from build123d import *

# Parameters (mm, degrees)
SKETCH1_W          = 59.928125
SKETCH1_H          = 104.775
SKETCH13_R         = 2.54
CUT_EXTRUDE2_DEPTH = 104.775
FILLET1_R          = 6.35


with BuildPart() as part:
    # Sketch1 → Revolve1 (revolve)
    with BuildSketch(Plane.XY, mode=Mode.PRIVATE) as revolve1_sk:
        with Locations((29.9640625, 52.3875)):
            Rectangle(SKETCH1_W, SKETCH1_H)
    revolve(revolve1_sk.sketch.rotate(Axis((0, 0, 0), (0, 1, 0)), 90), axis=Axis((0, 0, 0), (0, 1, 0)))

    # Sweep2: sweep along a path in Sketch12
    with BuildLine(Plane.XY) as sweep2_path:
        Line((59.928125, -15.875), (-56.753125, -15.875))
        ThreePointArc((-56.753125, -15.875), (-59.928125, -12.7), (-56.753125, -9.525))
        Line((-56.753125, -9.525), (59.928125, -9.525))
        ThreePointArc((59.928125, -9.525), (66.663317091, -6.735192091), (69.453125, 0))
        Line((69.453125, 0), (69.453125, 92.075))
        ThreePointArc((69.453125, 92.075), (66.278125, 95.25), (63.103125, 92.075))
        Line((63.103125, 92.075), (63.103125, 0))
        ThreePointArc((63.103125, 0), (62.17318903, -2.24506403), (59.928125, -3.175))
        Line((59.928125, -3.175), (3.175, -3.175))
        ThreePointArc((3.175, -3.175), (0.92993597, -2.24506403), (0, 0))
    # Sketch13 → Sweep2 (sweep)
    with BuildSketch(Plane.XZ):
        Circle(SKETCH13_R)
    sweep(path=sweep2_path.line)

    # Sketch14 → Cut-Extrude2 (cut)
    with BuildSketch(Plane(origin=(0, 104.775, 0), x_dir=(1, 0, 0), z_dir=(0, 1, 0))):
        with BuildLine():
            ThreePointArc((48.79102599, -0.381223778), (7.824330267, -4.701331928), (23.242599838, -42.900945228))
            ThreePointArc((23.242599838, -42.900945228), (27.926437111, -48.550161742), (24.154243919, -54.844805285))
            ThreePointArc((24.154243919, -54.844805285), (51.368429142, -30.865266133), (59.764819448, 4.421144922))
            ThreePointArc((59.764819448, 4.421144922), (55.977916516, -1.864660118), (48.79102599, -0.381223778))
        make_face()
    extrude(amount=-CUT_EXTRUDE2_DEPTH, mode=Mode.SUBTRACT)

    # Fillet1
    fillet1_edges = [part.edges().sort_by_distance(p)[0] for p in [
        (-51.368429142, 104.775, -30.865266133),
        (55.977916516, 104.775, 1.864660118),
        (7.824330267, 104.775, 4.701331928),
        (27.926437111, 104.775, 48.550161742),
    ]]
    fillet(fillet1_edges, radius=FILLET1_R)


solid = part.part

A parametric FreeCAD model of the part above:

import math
import FreeCAD as App
import Part
import Sketcher

V = App.Vector
Q = App.Units.Quantity


def edges_at(feature, points):
    """Names of the edges that pass closest to the given points."""
    edges = feature.Shape.Edges
    near = lambda p: min(range(len(edges)), key=lambda i: edges[i].distToShape(Part.Vertex(*p))[0])
    return sorted({f"Edge{near(p) + 1}" for p in points})

doc = App.newDocument("Part")
params = doc.addObject("Spreadsheet::Sheet", "Params")
for row, (alias, value) in enumerate([
    ("sketch1_width", "2.359375 in"),
    ("sketch1_height", "4.125 in"),
    ("revolution_angle", "360 deg"),
    ("sketch2_diameter", "0.2 in"),
    ("sketch3_radius", "0.125 in"),
    ("sketch3_width", "4.59375 in"),
    ("sketch3_width2", "2.234375 in"),
    ("sketch4_radius", "0.25 in"),
    ("sketch4_radius2", "1.015625 in"),
    ("sketch4_radius3", "2.359375 in"),
    ("pocket1_length", "4.125 in"),
    ("fillet_radius", "0.25 in"),
], start=1):
    params.set(f"A{row}", alias)
    params.set(f"B{row}", "=" + value)
    params.setAlias(f"B{row}", alias)

body = doc.addObject("PartDesign::Body", "Body")

sketch1 = body.newObject("Sketcher::SketchObject", "Sketch")
sketch1.AttachmentSupport = (doc.getObject("XY_Plane"), [""])
sketch1.MapMode = "FlatFace"
sketch1.addGeometry([
    Part.LineSegment(V(0, 105, 0), V(0, 0, 0)),
    Part.LineSegment(V(0, 0, 0), V(60, 0, 0)),
    Part.LineSegment(V(60, 0, 0), V(60, 105, 0)),
    Part.LineSegment(V(60, 105, 0), V(0, 105, 0)),
], False)
sketch1.addConstraint([
    Sketcher.Constraint("Coincident", 0, 2, 1, 1),
    Sketcher.Constraint("Coincident", 1, 2, 2, 1),
    Sketcher.Constraint("Coincident", 2, 2, 3, 1),
    Sketcher.Constraint("Coincident", 3, 2, 0, 1),
    Sketcher.Constraint("Vertical", 0),
    Sketcher.Constraint("Horizontal", 1),
    Sketcher.Constraint("Vertical", 2),
    Sketcher.Constraint("Horizontal", 3),
    Sketcher.Constraint("Coincident", 0, 2, -1, 1),
    Sketcher.Constraint("DistanceX", 1, 1, 1, 2, Q("2.359375 in")),
    Sketcher.Constraint("DistanceY", 0, 2, 0, 1, Q("4.125 in")),
])
sketch1.setExpression("Constraints[9]", "Params.sketch1_width")
sketch1.setExpression("Constraints[10]", "Params.sketch1_height")
revolution = body.newObject("PartDesign::Revolution", "Revolution")
revolution.Profile = sketch1
revolution.ReferenceAxis = (sketch1, ["V_Axis"])
revolution.setExpression("Angle", "Params.revolution_angle")

sketch2 = body.newObject("Sketcher::SketchObject", "Sketch001")
sketch2.AttachmentSupport = (doc.getObject("XZ_Plane"), [""])
sketch2.MapMode = "FlatFace"
sketch2.addGeometry(Part.Circle(V(0, 0, 0), V(0, 0, 1), 2.5), False)
sketch2.addConstraint([
    Sketcher.Constraint("Coincident", 0, 3, -1, 1),
    Sketcher.Constraint("Diameter", 0, Q("0.2 in")),
])
sketch2.setExpression("Constraints[1]", "Params.sketch2_diameter")

sketch3 = body.newObject("Sketcher::SketchObject", "Sketch002")
sketch3.AttachmentSupport = (doc.getObject("XY_Plane"), [""])
sketch3.MapMode = "FlatFace"
sketch3.addGeometry([
    Part.LineSegment(V(59.9, -15.9, 0), V(-56.8, -15.9, 0)),
    Part.ArcOfCircle(Part.Circle(V(-56.8, -12.7, 0), V(0, 0, 1), 3.2), math.radians(90), math.radians(270)),
    Part.LineSegment(V(-56.8, -9.5, 0), V(59.9, -9.5, 0)),
    Part.ArcOfCircle(Part.Circle(V(59.9, 0, 0), V(0, 0, 1), 9.5), math.radians(-90), math.radians(0)),
    Part.LineSegment(V(69.5, 0, 0), V(69.5, 92.1, 0)),
    Part.ArcOfCircle(Part.Circle(V(66.3, 92.1, 0), V(0, 0, 1), 3.2), math.radians(0), math.radians(180)),
    Part.LineSegment(V(63.1, 92.1, 0), V(63.1, 0, 0)),
    Part.ArcOfCircle(Part.Circle(V(59.9, 0, 0), V(0, 0, 1), 3.2), math.radians(-90), math.radians(0)),
    Part.LineSegment(V(59.9, -3.2, 0), V(3.2, -3.2, 0)),
    Part.ArcOfCircle(Part.Circle(V(3.2, 0, 0), V(0, 0, 1), 3.2), math.radians(-180), math.radians(-90)),
], False)
sketch3.addConstraint([
    Sketcher.Constraint("Tangent", 0, 2, 1, 2),
    Sketcher.Constraint("Tangent", 1, 1, 2, 1),
    Sketcher.Constraint("Tangent", 2, 2, 3, 1),
    Sketcher.Constraint("Tangent", 3, 2, 4, 1),
    Sketcher.Constraint("Tangent", 4, 2, 5, 1),
    Sketcher.Constraint("Tangent", 5, 2, 6, 1),
    Sketcher.Constraint("Tangent", 6, 2, 7, 2),
    Sketcher.Constraint("Tangent", 7, 1, 8, 1),
    Sketcher.Constraint("Tangent", 8, 2, 9, 2),
    Sketcher.Constraint("Horizontal", 0),
    Sketcher.Constraint("Horizontal", 2),
    Sketcher.Constraint("Vertical", 4),
    Sketcher.Constraint("Vertical", 6),
    Sketcher.Constraint("Horizontal", 8),
    Sketcher.Constraint("Coincident", 9, 1, -1, 1),
    Sketcher.Constraint("Coincident", 7, 3, 3, 3),
    Sketcher.Constraint("Equal", 1, 5),
    Sketcher.Constraint("Equal", 5, 7),
    Sketcher.Constraint("Equal", 7, 9),
    Sketcher.Constraint("PointOnObject", 3, 3, -1),
    Sketcher.Constraint("Vertical", 7, 3, 0, 1),
    Sketcher.Constraint("Radius", 1, Q("0.125 in")),
    Sketcher.Constraint("DistanceY", 2, 2, 5, 3, Q("4 in")),
    Sketcher.Constraint("DistanceX", 0, 2, 0, 1, Q("4.59375 in")),
    Sketcher.Constraint("DistanceX", 8, 2, 8, 1, Q("2.234375 in")),
])
sketch3.setExpression("Constraints[21]", "Params.sketch3_radius")
sketch3.setExpression("Constraints[23]", "Params.sketch3_width")
sketch3.setExpression("Constraints[24]", "Params.sketch3_width2")
doc.recompute()

additivepipe = body.newObject("PartDesign::AdditivePipe", "AdditivePipe")
additivepipe.Profile = sketch2
additivepipe.Spine = (sketch3, ["Edge1", "Edge2", "Edge3", "Edge4", "Edge5", "Edge6", "Edge7", "Edge8", "Edge9", "Edge10"])

sketch4 = body.newObject("Sketcher::SketchObject", "Sketch003")
sketch4.AttachmentSupport = (doc.getObject("XZ_Plane"), [""])
sketch4.MapMode = "FlatFace"
sketch4.AttachmentOffset = App.Placement(V(0, 0, -4.125 * 25.4), App.Rotation())
sketch4.addGeometry([
    Part.ArcOfCircle(Part.Circle(V(30, 18, 0), V(0, 0, 1), 26), math.radians(105), math.radians(317)),
    Part.ArcOfCircle(Part.Circle(V(22, 49, 0), V(0, 0, 1), 6), math.radians(-75), math.radians(66)),
    Part.ArcOfCircle(Part.Circle(V(0, 0, 0), V(0, 0, 1), 60), math.radians(-4), math.radians(66)),
    Part.ArcOfCircle(Part.Circle(V(53, -4, 0), V(0, 0, 1), 6), math.radians(-4), math.radians(137)),
], False)
sketch4.addConstraint([
    Sketcher.Constraint("Tangent", 0, 1, 1, 1),
    Sketcher.Constraint("Tangent", 1, 2, 2, 2),
    Sketcher.Constraint("Tangent", 2, 1, 3, 1),
    Sketcher.Constraint("Tangent", 3, 2, 0, 2),
    Sketcher.Constraint("Coincident", 2, 3, -1, 1),
    Sketcher.Constraint("Equal", 1, 3),
    Sketcher.Constraint("Radius", 1, Q("0.25 in")),
    Sketcher.Constraint("Radius", 0, Q("1.015625 in")),
    Sketcher.Constraint("Radius", 2, Q("2.359375 in")),
    Sketcher.Constraint("DistanceX", -1, 1, 0, 1, 23.2426),
    Sketcher.Constraint("DistanceY", 0, 3, 1, 2, 36.857101),
])
sketch4.setExpression("Constraints[6]", "Params.sketch4_radius")
sketch4.setExpression("Constraints[7]", "Params.sketch4_radius2")
sketch4.setExpression("Constraints[8]", "Params.sketch4_radius3")
pocket1 = body.newObject("PartDesign::Pocket", "Pocket")
pocket1.Profile = sketch4
pocket1.setExpression("Length", "Params.pocket1_length")
pocket1.Reversed = True
doc.recompute()

fillet = body.newObject("PartDesign::Fillet", "Fillet")
fillet.Base = (pocket1, edges_at(pocket1, [
    (-51.368, 104.775, -30.865),
    (55.978, 104.775, 1.865),
    (7.824, 104.775, 4.701),
    (27.926, 104.775, 48.55),
]))
fillet.setExpression("Radius", "Params.fillet_radius")

doc.recompute()
